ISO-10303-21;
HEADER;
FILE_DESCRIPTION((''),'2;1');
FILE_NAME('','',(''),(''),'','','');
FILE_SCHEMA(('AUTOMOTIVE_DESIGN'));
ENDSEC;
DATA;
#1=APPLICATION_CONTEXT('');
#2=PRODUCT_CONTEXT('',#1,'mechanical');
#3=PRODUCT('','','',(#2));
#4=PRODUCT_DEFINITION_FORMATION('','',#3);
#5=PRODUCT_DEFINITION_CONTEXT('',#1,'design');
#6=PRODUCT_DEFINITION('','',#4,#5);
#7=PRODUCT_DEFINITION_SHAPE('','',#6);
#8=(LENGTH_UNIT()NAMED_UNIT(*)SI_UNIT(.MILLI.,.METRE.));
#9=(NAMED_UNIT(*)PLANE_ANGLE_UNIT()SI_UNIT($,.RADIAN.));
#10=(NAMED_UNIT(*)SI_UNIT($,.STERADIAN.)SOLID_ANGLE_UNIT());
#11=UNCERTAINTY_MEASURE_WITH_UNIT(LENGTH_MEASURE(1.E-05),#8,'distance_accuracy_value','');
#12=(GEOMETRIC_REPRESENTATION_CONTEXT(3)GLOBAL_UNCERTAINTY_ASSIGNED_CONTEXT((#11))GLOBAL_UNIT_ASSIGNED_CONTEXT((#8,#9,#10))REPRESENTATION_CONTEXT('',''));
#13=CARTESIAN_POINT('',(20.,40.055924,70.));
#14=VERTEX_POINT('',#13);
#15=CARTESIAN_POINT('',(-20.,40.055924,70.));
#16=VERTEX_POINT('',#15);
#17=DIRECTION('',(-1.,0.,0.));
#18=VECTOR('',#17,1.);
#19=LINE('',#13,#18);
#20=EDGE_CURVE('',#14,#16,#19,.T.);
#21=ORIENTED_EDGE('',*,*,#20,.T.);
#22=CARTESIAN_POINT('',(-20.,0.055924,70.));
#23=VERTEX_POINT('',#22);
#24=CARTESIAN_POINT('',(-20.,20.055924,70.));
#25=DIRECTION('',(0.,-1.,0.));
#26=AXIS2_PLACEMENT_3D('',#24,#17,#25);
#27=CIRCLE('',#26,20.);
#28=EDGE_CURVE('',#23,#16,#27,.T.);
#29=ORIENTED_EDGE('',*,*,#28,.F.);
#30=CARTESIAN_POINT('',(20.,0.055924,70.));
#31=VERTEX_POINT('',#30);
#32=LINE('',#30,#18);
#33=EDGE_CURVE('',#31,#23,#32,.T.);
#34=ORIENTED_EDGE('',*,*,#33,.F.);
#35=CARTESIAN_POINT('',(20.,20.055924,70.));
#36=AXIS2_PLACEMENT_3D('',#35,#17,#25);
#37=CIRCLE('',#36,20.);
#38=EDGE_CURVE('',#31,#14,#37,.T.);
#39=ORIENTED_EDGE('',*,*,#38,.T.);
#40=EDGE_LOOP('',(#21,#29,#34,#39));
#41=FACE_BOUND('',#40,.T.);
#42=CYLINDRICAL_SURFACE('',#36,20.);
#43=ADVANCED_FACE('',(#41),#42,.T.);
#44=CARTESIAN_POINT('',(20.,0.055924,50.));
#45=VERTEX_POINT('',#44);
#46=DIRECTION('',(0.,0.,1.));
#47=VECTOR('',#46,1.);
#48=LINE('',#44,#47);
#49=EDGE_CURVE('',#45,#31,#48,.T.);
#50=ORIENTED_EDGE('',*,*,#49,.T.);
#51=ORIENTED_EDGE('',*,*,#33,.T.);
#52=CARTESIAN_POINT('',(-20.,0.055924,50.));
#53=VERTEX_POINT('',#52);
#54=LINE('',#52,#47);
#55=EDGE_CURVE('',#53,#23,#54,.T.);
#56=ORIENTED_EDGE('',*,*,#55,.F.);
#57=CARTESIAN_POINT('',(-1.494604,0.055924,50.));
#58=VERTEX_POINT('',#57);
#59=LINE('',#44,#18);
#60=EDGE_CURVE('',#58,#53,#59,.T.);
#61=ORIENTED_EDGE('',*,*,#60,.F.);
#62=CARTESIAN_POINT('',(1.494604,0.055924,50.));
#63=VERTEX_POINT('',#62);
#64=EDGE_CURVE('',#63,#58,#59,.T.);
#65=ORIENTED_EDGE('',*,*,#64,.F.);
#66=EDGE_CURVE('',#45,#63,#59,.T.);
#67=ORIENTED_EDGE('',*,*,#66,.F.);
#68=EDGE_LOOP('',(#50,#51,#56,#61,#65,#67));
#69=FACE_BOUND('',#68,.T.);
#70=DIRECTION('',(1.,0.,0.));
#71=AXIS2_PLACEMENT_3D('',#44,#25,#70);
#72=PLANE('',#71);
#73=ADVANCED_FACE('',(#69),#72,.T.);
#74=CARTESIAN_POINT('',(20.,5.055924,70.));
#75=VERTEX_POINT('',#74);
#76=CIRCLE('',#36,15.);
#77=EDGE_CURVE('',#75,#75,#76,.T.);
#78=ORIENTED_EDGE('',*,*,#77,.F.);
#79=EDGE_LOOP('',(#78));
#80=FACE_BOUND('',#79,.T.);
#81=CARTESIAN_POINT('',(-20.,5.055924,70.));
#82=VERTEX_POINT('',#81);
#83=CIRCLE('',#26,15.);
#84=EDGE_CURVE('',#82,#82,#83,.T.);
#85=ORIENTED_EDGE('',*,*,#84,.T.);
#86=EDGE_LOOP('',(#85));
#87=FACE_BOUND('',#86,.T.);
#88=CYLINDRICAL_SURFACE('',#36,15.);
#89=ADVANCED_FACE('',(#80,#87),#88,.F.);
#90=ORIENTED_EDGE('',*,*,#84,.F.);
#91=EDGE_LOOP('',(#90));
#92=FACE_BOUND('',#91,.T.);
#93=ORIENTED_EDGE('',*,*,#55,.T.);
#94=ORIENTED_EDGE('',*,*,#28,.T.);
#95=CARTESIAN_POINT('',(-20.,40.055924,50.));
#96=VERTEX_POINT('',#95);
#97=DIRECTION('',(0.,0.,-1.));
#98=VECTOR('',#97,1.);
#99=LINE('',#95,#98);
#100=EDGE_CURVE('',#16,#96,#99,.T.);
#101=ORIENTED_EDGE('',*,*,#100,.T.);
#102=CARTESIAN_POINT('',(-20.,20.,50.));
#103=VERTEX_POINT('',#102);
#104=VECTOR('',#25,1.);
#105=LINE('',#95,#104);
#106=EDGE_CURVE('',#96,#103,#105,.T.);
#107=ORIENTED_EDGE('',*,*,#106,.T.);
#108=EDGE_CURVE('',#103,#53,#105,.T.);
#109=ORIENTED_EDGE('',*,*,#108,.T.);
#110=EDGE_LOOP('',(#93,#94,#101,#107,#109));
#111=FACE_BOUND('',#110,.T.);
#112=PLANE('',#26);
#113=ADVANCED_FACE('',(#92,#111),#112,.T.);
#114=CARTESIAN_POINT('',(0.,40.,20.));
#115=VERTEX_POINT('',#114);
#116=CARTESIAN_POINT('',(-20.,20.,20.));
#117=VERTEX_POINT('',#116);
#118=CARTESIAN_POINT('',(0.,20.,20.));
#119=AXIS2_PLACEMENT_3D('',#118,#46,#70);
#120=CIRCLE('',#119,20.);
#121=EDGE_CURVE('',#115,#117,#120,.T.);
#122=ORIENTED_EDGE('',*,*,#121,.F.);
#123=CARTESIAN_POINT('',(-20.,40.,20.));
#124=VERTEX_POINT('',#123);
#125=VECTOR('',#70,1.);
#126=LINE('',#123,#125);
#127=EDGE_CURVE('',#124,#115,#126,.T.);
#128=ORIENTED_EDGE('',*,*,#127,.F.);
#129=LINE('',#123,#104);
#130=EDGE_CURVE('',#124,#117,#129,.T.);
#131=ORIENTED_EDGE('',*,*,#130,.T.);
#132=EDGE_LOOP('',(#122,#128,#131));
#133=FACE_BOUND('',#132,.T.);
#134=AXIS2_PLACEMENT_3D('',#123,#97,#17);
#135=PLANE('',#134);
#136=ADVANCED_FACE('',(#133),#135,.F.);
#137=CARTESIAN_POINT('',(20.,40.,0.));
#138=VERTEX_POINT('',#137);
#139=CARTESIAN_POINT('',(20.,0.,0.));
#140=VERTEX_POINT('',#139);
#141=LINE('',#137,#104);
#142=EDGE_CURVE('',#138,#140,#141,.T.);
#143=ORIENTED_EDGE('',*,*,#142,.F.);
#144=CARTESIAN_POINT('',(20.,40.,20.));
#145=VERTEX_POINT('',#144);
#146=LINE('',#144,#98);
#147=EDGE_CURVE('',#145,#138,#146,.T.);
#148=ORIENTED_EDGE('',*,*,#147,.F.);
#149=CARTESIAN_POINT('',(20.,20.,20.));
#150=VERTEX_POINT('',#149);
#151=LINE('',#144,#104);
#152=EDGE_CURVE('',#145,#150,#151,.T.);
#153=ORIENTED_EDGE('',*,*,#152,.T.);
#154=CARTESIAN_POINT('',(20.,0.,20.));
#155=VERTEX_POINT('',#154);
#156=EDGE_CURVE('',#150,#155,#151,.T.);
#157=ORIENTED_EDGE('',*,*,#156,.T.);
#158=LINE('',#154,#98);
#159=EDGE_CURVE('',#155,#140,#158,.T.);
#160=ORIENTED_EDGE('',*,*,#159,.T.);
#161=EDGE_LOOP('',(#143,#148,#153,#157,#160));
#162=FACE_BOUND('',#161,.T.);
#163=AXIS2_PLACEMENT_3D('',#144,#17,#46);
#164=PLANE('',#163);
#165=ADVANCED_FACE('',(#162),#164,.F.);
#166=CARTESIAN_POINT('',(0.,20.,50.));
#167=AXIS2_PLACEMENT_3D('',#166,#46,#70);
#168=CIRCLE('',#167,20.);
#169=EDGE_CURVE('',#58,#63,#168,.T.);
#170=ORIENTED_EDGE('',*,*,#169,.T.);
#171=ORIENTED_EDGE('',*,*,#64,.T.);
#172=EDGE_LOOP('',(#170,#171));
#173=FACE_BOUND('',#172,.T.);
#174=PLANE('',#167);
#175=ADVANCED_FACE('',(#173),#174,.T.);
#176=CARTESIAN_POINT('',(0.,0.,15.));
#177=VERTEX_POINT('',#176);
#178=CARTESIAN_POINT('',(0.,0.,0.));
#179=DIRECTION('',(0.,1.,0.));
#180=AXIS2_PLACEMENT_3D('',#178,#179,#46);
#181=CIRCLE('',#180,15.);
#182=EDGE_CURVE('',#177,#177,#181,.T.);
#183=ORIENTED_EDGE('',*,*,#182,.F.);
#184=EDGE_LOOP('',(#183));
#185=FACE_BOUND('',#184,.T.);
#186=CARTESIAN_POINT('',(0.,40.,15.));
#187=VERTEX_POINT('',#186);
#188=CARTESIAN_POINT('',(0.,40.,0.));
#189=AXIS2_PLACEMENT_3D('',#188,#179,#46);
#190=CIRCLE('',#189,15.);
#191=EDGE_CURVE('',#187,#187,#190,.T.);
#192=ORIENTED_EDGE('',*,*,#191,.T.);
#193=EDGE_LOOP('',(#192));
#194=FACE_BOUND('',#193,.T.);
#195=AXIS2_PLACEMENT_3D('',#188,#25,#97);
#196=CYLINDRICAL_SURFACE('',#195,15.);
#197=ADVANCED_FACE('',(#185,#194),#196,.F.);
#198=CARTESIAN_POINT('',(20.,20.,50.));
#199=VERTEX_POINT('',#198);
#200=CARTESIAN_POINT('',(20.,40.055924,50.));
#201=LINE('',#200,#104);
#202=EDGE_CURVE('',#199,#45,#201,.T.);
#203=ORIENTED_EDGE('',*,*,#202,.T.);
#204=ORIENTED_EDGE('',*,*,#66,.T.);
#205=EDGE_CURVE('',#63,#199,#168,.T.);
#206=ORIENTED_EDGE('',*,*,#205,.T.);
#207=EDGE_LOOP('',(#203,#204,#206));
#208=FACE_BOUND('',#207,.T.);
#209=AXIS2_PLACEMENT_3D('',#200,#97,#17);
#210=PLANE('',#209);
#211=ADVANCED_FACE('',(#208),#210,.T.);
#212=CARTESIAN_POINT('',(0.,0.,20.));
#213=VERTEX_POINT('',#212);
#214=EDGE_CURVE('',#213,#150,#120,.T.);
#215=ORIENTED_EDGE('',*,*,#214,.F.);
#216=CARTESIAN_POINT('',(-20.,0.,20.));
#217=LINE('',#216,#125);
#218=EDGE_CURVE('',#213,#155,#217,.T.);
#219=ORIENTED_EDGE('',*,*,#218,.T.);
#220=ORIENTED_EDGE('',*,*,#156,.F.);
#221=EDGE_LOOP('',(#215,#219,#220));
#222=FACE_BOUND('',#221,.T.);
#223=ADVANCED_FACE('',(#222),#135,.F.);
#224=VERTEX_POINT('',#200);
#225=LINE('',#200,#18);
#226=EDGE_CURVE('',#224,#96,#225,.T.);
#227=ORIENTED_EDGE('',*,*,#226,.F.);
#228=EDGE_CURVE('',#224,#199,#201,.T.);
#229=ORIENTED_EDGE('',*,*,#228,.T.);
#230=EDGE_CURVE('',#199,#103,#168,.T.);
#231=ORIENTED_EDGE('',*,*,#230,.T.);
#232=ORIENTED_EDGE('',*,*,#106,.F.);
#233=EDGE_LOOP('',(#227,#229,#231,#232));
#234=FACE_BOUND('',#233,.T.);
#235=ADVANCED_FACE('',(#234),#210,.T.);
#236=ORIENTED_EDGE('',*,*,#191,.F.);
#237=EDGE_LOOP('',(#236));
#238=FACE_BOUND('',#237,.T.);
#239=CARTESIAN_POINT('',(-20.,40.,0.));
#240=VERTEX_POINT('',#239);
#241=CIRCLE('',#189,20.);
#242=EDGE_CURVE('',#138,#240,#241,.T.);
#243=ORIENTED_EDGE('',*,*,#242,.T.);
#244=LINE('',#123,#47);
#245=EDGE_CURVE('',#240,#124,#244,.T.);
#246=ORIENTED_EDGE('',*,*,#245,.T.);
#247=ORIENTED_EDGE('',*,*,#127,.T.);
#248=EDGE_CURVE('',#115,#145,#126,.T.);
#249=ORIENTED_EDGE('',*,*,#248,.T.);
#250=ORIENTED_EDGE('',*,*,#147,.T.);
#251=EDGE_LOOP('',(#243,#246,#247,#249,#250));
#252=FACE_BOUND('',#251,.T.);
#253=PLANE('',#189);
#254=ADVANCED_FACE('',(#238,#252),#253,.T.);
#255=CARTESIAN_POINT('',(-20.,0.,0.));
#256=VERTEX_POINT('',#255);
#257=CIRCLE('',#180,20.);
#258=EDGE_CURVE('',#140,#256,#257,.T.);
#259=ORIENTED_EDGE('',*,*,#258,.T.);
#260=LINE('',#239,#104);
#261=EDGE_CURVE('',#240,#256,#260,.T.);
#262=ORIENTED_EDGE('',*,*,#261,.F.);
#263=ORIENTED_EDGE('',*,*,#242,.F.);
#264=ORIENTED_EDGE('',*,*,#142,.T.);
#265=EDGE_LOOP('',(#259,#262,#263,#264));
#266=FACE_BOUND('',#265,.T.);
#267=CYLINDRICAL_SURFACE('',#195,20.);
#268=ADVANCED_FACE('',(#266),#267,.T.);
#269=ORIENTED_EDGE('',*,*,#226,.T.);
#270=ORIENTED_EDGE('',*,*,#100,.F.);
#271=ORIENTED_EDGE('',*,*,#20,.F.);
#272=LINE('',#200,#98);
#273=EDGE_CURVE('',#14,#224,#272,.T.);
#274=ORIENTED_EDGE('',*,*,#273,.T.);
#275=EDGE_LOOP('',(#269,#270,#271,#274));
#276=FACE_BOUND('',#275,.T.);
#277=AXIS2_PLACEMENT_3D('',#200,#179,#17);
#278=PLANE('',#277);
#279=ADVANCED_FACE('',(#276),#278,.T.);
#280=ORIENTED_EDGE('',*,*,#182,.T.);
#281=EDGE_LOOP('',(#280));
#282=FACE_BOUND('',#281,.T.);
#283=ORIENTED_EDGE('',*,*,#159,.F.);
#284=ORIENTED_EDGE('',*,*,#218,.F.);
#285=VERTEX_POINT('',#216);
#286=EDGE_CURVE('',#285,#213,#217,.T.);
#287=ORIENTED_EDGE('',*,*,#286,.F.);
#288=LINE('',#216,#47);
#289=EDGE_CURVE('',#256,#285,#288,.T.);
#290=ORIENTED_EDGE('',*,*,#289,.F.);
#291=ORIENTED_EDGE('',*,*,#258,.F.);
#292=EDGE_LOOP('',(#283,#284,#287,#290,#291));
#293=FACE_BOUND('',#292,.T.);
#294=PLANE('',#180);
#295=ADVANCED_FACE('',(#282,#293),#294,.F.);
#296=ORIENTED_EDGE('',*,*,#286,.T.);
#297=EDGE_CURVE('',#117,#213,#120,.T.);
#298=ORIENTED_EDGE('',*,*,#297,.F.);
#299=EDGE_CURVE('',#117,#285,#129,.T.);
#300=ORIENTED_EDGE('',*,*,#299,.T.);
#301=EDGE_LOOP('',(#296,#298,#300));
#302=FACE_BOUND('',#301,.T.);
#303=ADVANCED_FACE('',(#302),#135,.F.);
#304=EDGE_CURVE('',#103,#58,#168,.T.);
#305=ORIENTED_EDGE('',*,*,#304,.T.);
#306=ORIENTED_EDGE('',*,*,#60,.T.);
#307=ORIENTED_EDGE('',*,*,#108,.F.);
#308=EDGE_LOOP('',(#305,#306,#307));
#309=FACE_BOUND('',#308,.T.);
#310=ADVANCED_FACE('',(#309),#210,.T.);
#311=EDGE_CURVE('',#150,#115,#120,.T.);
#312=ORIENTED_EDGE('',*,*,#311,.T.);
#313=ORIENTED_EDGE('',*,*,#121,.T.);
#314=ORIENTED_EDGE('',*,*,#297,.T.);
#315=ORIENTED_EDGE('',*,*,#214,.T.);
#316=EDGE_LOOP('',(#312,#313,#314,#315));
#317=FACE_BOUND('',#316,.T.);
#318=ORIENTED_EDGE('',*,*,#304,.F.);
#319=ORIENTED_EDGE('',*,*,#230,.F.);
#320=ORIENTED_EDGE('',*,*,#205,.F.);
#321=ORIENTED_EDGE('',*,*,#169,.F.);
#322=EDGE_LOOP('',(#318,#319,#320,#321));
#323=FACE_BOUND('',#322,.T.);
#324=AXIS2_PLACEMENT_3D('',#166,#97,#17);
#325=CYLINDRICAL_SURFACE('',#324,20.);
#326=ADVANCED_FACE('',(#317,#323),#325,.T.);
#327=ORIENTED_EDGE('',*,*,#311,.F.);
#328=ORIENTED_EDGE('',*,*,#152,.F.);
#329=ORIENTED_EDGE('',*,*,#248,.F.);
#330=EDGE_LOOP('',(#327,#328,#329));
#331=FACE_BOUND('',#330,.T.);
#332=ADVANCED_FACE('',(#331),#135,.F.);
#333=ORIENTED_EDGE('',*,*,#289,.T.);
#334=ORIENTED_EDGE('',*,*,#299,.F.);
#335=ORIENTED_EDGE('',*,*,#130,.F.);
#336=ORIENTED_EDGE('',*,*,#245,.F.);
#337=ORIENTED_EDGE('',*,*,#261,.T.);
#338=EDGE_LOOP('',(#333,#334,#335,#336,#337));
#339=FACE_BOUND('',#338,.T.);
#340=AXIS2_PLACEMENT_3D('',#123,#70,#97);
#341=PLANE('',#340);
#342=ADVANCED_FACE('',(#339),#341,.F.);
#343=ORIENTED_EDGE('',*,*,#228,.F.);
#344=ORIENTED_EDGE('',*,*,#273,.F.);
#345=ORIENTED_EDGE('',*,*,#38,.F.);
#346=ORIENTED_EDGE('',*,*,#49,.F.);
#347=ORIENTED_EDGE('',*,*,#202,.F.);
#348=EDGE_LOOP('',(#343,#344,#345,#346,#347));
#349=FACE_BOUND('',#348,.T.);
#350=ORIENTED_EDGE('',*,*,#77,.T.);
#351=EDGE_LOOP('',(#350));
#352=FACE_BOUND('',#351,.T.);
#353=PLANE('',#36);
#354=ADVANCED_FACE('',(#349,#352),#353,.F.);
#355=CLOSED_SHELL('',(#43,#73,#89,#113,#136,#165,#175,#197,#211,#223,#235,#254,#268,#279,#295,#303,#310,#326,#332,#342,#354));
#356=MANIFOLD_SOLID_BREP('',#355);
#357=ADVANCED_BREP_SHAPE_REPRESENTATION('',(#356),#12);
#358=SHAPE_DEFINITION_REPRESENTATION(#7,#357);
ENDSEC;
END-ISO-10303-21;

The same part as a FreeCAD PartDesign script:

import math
import FreeCAD as App
import Part
import Sketcher

doc = App.newDocument("Part")
body = doc.addObject("PartDesign::Body", "Body")

# Sketch on XZ plane
sketch1 = body.newObject("Sketcher::SketchObject", "Sketch")
sketch1.AttachmentSupport = (doc.getObject("XZ_Plane"), [""])
sketch1.MapMode = "FlatFace"
sketch1.addGeometry(Part.LineSegment(App.Vector(-20, 20, 0), App.Vector(20, 20, 0)), False)
sketch1.addGeometry(Part.LineSegment(App.Vector(20, 20, 0), App.Vector(20, 0, 0)), False)
sketch1.addGeometry(Part.ArcOfCircle(Part.Circle(App.Vector(0, 0, 0), App.Vector(0, 0, 1), 20), math.radians(180), math.radians(360)), False)
sketch1.addGeometry(Part.LineSegment(App.Vector(-20, 0, 0), App.Vector(-20, 20, 0)), False)
sketch1.addGeometry(Part.Circle(App.Vector(0, 0, 0), App.Vector(0, 0, 1), 15), False)
sketch1.addConstraint(Sketcher.Constraint("Coincident", 0, 2, 1, 1))
sketch1.addConstraint(Sketcher.Constraint("Tangent", 1, 2, 2, 2))
sketch1.addConstraint(Sketcher.Constraint("Tangent", 2, 1, 3, 1))
sketch1.addConstraint(Sketcher.Constraint("Coincident", 3, 2, 0, 1))
sketch1.addConstraint(Sketcher.Constraint("Horizontal", 0))
sketch1.addConstraint(Sketcher.Constraint("Vertical", 1))
sketch1.addConstraint(Sketcher.Constraint("Vertical", 3))
sketch1.addConstraint(Sketcher.Constraint("Coincident", 2, 3, -1, 1))
sketch1.addConstraint(Sketcher.Constraint("Coincident", 4, 3, -1, 1))
sketch1.addConstraint(Sketcher.Constraint("Diameter", 4, 30.0))
sketch1.addConstraint(Sketcher.Constraint("Radius", 2, 20.0))
sketch1.addConstraint(Sketcher.Constraint("DistanceY", 1, 2, 1, 1, 20.0))
pad1 = body.newObject("PartDesign::Pad", "Pad")
pad1.Profile = sketch1
pad1.Length = 40
pad1.Reversed = True

# Sketch on XY plane
sketch2 = body.newObject("Sketcher::SketchObject", "Sketch001")
sketch2.AttachmentSupport = (doc.getObject("XY_Plane"), [""])
sketch2.MapMode = "FlatFace"
sketch2.AttachmentOffset = App.Placement(App.Vector(0, 0, 20), App.Rotation())
sketch2.addGeometry(Part.Circle(App.Vector(0, 20, 0), App.Vector(0, 0, 1), 20), False)
sketch2.addConstraint(Sketcher.Constraint("PointOnObject", 0, 3, -2))
sketch2.addConstraint(Sketcher.Constraint("Diameter", 0, 40.0))
sketch2.addConstraint(Sketcher.Constraint("DistanceY", -1, 1, 0, 3, 20.0))
pad2 = body.newObject("PartDesign::Pad", "Pad001")
pad2.Profile = sketch2
pad2.Length = 30

# Sketch on YZ plane
sketch3 = body.newObject("Sketcher::SketchObject", "Sketch002")
sketch3.AttachmentSupport = (doc.getObject("YZ_Plane"), [""])
sketch3.MapMode = "FlatFace"
sketch3.AttachmentOffset = App.Placement(App.Vector(0, 0, -20), App.Rotation())
sketch3.addGeometry(Part.LineSegment(App.Vector(40, 50, 0), App.Vector(0, 50, 0)), False)
sketch3.addGeometry(Part.LineSegment(App.Vector(0, 50, 0), App.Vector(0, 70, 0)), False)
sketch3.addGeometry(Part.ArcOfCircle(Part.Circle(App.Vector(20, 70, 0), App.Vector(0, 0, 1), 20), math.radians(0), math.radians(180)), False)
sketch3.addGeometry(Part.LineSegment(App.Vector(40, 70, 0), App.Vector(40, 50, 0)), False)
sketch3.addGeometry(Part.Circle(App.Vector(20, 70, 0), App.Vector(0, 0, 1), 15), False)
sketch3.addConstraint(Sketcher.Constraint("Coincident", 0, 2, 1, 1))
sketch3.addConstraint(Sketcher.Constraint("Tangent", 1, 2, 2, 2))
sketch3.addConstraint(Sketcher.Constraint("Tangent", 2, 1, 3, 1))
sketch3.addConstraint(Sketcher.Constraint("Coincident", 3, 2, 0, 1))
sketch3.addConstraint(Sketcher.Constraint("Horizontal", 0))
sketch3.addConstraint(Sketcher.Constraint("Vertical", 1))
sketch3.addConstraint(Sketcher.Constraint("Vertical", 3))
sketch3.addConstraint(Sketcher.Constraint("Coincident", 4, 3, 2, 3))
sketch3.addConstraint(Sketcher.Constraint("Diameter", 4, 30.0))
sketch3.addConstraint(Sketcher.Constraint("Radius", 2, 20.0))
sketch3.addConstraint(Sketcher.Constraint("DistanceY", 1, 1, 1, 2, 20.0))
sketch3.addConstraint(Sketcher.Constraint("DistanceY", -1, 1, 2, 3, 70.0))
sketch3.addConstraint(Sketcher.Constraint("DistanceX", -1, 1, 2, 3, 20.055924))
pad3 = body.newObject("PartDesign::Pad", "Pad002")
pad3.Profile = sketch3
pad3.Length = 40

doc.recompute()
